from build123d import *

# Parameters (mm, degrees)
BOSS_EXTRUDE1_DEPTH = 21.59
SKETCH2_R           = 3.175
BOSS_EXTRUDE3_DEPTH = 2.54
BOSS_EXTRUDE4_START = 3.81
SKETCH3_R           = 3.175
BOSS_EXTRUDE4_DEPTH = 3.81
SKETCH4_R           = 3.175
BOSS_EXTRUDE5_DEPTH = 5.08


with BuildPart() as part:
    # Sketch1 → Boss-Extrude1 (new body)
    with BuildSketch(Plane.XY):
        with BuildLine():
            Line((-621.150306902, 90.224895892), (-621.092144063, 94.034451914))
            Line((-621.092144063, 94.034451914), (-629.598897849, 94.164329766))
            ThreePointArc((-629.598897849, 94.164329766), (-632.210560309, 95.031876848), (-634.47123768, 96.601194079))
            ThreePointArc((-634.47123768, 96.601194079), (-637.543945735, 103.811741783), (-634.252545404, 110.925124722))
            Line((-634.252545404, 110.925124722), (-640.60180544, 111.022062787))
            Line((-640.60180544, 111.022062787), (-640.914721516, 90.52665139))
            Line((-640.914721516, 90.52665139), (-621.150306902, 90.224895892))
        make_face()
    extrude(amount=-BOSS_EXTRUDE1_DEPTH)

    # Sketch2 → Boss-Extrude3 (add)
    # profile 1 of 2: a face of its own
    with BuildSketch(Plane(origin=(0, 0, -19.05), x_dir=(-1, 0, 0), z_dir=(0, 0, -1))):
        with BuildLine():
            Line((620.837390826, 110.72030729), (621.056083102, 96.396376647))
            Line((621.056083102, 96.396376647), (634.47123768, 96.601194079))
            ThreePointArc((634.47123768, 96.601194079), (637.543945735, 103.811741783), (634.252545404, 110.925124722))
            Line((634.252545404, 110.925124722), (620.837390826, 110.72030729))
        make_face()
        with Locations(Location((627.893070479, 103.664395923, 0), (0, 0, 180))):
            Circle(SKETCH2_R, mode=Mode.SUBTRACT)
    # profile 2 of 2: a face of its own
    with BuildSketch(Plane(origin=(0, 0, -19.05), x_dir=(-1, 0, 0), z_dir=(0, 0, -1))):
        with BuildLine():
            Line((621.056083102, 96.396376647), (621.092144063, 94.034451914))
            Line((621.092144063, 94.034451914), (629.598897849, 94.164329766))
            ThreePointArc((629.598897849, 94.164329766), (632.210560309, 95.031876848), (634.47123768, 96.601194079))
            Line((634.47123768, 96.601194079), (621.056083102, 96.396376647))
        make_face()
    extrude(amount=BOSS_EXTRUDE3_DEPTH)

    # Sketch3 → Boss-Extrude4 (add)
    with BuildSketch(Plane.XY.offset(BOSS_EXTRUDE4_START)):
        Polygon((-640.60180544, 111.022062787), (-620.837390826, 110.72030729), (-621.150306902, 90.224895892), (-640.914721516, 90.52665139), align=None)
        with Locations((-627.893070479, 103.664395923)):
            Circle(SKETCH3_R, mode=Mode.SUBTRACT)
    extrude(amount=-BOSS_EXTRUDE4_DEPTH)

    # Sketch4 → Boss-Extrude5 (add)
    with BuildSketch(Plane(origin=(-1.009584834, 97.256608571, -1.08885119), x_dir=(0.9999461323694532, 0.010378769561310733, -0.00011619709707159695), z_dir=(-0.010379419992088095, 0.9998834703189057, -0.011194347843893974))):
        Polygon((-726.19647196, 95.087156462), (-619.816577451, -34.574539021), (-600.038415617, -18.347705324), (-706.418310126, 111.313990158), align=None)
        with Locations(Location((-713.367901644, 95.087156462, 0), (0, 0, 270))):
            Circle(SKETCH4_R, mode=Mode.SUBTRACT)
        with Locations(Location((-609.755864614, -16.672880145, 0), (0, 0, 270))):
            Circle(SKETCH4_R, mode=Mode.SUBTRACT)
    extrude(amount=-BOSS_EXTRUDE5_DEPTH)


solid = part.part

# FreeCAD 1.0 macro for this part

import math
import FreeCAD as App
import Part
import Sketcher

V = App.Vector
Q = App.Units.Quantity


def add_polygon(sketch, points):
    """Adds a closed chain of lines whose ends are joined by coincident constraints."""
    first, n = sketch.GeometryCount, len(points)
    for a, b in zip(points, points[1:] + points[:1]):
        sketch.addGeometry(Part.LineSegment(App.Vector(*a, 0), App.Vector(*b, 0)), False)
    for i in range(n):
        sketch.addConstraint(Sketcher.Constraint("Coincident", first + i, 2, first + (i + 1) % n, 1))

doc = App.newDocument("Part")
body = doc.addObject("PartDesign::Body", "Body")

# Sketch on XY plane
sketch1 = body.newObject("Sketcher::SketchObject", "Sketch")
sketch1.AttachmentSupport = (doc.getObject("XY_Plane"), [""])
sketch1.MapMode = "FlatFace"
sketch1.addGeometry([
    Part.LineSegment(V(-621.2, 90.2, 0), V(-621.1, 94, 0)),  # 0
    Part.LineSegment(V(-621.1, 94, 0), V(-629.6, 94.2, 0)),  # 1
    Part.ArcOfCircle(Part.Circle(V(-627.9, 103.7, 0), V(0, 0, 1), 9.7), math.radians(-133), math.radians(-100)),  # 2
    Part.ArcOfCircle(Part.Circle(V(-627.9, 103.7, 0), V(0, 0, 1), 9.7), math.radians(131), math.radians(227)),  # 3
    Part.LineSegment(V(-634.3, 110.9, 0), V(-640.6, 111, 0)),  # 4
    Part.LineSegment(V(-640.6, 111, 0), V(-640.9, 90.5, 0)),  # 5
    Part.LineSegment(V(-640.9, 90.5, 0), V(-621.2, 90.2, 0)),  # 6
], False)
sketch1.addConstraint([
    Sketcher.Constraint("Coincident", 0, 2, 1, 1),
    Sketcher.Constraint("Coincident", 1, 2, 2, 2),
    Sketcher.Constraint("Tangent", 2, 1, 3, 2),
    Sketcher.Constraint("Coincident", 3, 1, 4, 1),
    Sketcher.Constraint("Coincident", 4, 2, 5, 1),
    Sketcher.Constraint("Coincident", 5, 2, 6, 1),
    Sketcher.Constraint("Coincident", 6, 2, 0, 1),
    Sketcher.Constraint("Equal", 2, 3),
    Sketcher.Constraint("Perpendicular", 0, 1),
    Sketcher.Constraint("Parallel", 1, 4),
    Sketcher.Constraint("Perpendicular", 4, 5),
    Sketcher.Constraint("Perpendicular", 5, 6),
    Sketcher.Constraint("Radius", 2, Q("0.38 in")),
    Sketcher.Constraint("Distance", 0, Q("0.15 in")),
    Sketcher.Constraint("Distance", 4, Q("0.25 in")),
    Sketcher.Constraint("Distance", 5, Q("0.807 in")),
    Sketcher.Constraint("DistanceY", 2, 1, 2, 3, Q("7.063202 mm")),
    Sketcher.Constraint("DistanceX", 3, 1, 0, 2, Q("13.160401 mm")),
    Sketcher.Constraint("DistanceY", 5, 2, 0, 2, Q("3.507801 mm")),
    Sketcher.Constraint("DistanceY", 6, 2, 2, 1, Q("6.376298 mm")),
    Sketcher.Constraint("DistanceX", 2, 3, -1, 1, Q("627.89307 mm")),
    Sketcher.Constraint("DistanceY", -1, 1, 0, 2, Q("94.034452 mm")),
])
pad1 = body.newObject("PartDesign::Pad", "Pad")
pad1.Profile = sketch1
pad1.Length = Q("0.85 in")
pad1.Reversed = True

# Sketch on XY plane
sketch2 = body.newObject("Sketcher::SketchObject", "Sketch001")
sketch2.AttachmentSupport = (doc.getObject("XY_Plane"), [""])
sketch2.MapMode = "FlatFace"
sketch2.AttachmentOffset = App.Placement(V(0, 0, -0.75 * 25.4), App.Rotation())
sketch2.addGeometry([
    Part.LineSegment(V(-620.8, 110.7, 0), V(-621.1, 96.4, 0)),  # 0
    Part.LineSegment(V(-621.1, 96.4, 0), V(-621.1, 94, 0)),  # 1
    Part.LineSegment(V(-621.1, 94, 0), V(-629.6, 94.2, 0)),  # 2
    Part.ArcOfCircle(Part.Circle(V(-627.9, 103.7, 0), V(0, 0, 1), 9.7), math.radians(-133), math.radians(-100)),  # 3
    Part.ArcOfCircle(Part.Circle(V(-627.9, 103.7, 0), V(0, 0, 1), 9.7), math.radians(131), math.radians(227)),  # 4
    Part.LineSegment(V(-634.3, 110.9, 0), V(-620.8, 110.7, 0)),  # 5
    Part.Circle(V(-627.9, 103.7, 0), V(0, 0, 1), 3.2),  # 6
], False)
sketch2.addConstraint([
    Sketcher.Constraint("Coincident", 0, 2, 1, 1),
    Sketcher.Constraint("Coincident", 1, 2, 2, 1),
    Sketcher.Constraint("Coincident", 2, 2, 3, 2),
    Sketcher.Constraint("Tangent", 3, 1, 4, 2),
    Sketcher.Constraint("Coincident", 4, 1, 5, 1),
    Sketcher.Constraint("Coincident", 5, 2, 0, 1),
    Sketcher.Constraint("Coincident", 6, 3, 3, 3),
    Sketcher.Constraint("Equal", 3, 4),
    Sketcher.Constraint("Parallel", 0, 1),
    Sketcher.Constraint("Perpendicular", 1, 2),
    Sketcher.Constraint("Parallel", 2, 5),
    Sketcher.Constraint("Diameter", 6, Q("0.25 in")),
    Sketcher.Constraint("Radius", 3, Q("0.38 in")),
    Sketcher.Constraint("Distance", 0, Q("0.564 in")),
    Sketcher.Constraint("Distance", 1, Q("0.093 in")),
    Sketcher.Constraint("DistanceY", 3, 1, 3, 3, Q("7.063202 mm")),
    Sketcher.Constraint("Distance", 5, Q("13.416718 mm")),
    Sketcher.Constraint("DistanceX", 3, 3, -1, 1, Q("627.89307 mm")),
    Sketcher.Constraint("DistanceY", -1, 1, 1, 2, Q("94.034452 mm")),
    Sketcher.Constraint("DistanceY", -1, 1, 2, 2, Q("94.16433 mm")),
    Sketcher.Constraint("DistanceX", 5, 2, -1, 1, Q("620.837391 mm")),
])
pad2 = body.newObject("PartDesign::Pad", "Pad001")
pad2.Profile = sketch2
pad2.Length = Q("0.1 in")
pad2.Reversed = True

# Sketch on XY plane
sketch3 = body.newObject("Sketcher::SketchObject", "Sketch002")
sketch3.AttachmentSupport = (doc.getObject("XY_Plane"), [""])
sketch3.MapMode = "FlatFace"
sketch3.AttachmentOffset = App.Placement(V(0, 0, 0.15 * 25.4), App.Rotation())
add_polygon(sketch3, [(-620.8, 110.7), (-640.6, 111), (-640.9, 90.5), (-621.2, 90.2)])  # lines 0-3
sketch3.addGeometry(Part.Circle(V(-627.9, 103.7, 0), V(0, 0, 1), 3.2), False)  # 4
sketch3.addConstraint([
    Sketcher.Constraint("Perpendicular", 0, 1),
    Sketcher.Constraint("Perpendicular", 1, 2),
    Sketcher.Constraint("Perpendicular", 2, 3),
    Sketcher.Constraint("Diameter", 4, Q("0.25 in")),
    Sketcher.Constraint("Distance", 1, Q("0.807 in")),
    Sketcher.Constraint("DistanceY", 2, 2, 4, 3, Q("13.4395 mm")),
    Sketcher.Constraint("DistanceX", 0, 2, 2, 2, Q("19.451499 mm")),
    Sketcher.Constraint("Distance", 0, Q("19.766718 mm")),
    Sketcher.Constraint("DistanceX", 4, 3, -1, 1, Q("627.89307 mm")),
    Sketcher.Constraint("DistanceX", 1, 2, -1, 1, Q("640.914722 mm")),
    Sketcher.Constraint("DistanceY", -1, 1, 1, 2, Q("90.526651 mm")),
])
pad3 = body.newObject("PartDesign::Pad", "Pad002")
pad3.Profile = sketch3
pad3.Length = Q("0.15 in")
pad3.Reversed = True

# Sketch on an angled plane
sketch4 = body.newObject("Sketcher::SketchObject", "Sketch003")
sketch4.Placement = App.Placement(V(-1.009585, 97.256609, -1.088851), App.Rotation(V(0.999946132, 0.01037877, -0.000116197), V(0, -0.011194951, -0.999937334), V(-0.01037942, 0.99988347, -0.011194348), "ZXY"))
add_polygon(sketch4, [(-726.2, 95.1), (-619.8, -34.6), (-600, -18.3), (-706.4, 111.3)])  # lines 0-3
sketch4.addGeometry(Part.Circle(V(-609.8, -16.7, 0), V(0, 0, 1), 3.2), False)  # 4
sketch4.addGeometry(Part.Circle(V(-713.4, 95.1, 0), V(0, 0, 1), 3.2), False)  # 5
sketch4.addConstraint([
    Sketcher.Constraint("Equal", 4, 5),
    Sketcher.Constraint("Perpendicular", 0, 1),
    Sketcher.Constraint("Perpendicular", 1, 2),
    Sketcher.Constraint("Perpendicular", 2, 3),
    Sketcher.Constraint("Horizontal", 5, 3, 3, 2),
    Sketcher.Constraint("Diameter", 4, Q("0.25 in")),
    Sketcher.Constraint("DistanceX", 5, 3, -1, 1, Q("713.367901 mm")),
    Sketcher.Constraint("Distance", 0, Q("167.716538 mm")),
    Sketcher.Constraint("Distance", 1, Q("25.58292 mm")),
    Sketcher.Constraint("DistanceY", 4, 3, -1, 1, Q("16.67288 mm")),
    Sketcher.Constraint("DistanceY", 0, 2, -1, 1, Q("34.574539 mm")),
    Sketcher.Constraint("DistanceX", 2, 2, -1, 1, Q("706.41831 mm")),
    Sketcher.Constraint("DistanceY", -1, 1, 2, 2, Q("111.31399 mm")),
    Sketcher.Constraint("DistanceX", 4, 3, 1, 2, Q("9.717449 mm")),
])
pad4 = body.newObject("PartDesign::Pad", "Pad003")
pad4.Profile = sketch4
pad4.Length = Q("0.2 in")
pad4.Reversed = True

doc.recompute()
